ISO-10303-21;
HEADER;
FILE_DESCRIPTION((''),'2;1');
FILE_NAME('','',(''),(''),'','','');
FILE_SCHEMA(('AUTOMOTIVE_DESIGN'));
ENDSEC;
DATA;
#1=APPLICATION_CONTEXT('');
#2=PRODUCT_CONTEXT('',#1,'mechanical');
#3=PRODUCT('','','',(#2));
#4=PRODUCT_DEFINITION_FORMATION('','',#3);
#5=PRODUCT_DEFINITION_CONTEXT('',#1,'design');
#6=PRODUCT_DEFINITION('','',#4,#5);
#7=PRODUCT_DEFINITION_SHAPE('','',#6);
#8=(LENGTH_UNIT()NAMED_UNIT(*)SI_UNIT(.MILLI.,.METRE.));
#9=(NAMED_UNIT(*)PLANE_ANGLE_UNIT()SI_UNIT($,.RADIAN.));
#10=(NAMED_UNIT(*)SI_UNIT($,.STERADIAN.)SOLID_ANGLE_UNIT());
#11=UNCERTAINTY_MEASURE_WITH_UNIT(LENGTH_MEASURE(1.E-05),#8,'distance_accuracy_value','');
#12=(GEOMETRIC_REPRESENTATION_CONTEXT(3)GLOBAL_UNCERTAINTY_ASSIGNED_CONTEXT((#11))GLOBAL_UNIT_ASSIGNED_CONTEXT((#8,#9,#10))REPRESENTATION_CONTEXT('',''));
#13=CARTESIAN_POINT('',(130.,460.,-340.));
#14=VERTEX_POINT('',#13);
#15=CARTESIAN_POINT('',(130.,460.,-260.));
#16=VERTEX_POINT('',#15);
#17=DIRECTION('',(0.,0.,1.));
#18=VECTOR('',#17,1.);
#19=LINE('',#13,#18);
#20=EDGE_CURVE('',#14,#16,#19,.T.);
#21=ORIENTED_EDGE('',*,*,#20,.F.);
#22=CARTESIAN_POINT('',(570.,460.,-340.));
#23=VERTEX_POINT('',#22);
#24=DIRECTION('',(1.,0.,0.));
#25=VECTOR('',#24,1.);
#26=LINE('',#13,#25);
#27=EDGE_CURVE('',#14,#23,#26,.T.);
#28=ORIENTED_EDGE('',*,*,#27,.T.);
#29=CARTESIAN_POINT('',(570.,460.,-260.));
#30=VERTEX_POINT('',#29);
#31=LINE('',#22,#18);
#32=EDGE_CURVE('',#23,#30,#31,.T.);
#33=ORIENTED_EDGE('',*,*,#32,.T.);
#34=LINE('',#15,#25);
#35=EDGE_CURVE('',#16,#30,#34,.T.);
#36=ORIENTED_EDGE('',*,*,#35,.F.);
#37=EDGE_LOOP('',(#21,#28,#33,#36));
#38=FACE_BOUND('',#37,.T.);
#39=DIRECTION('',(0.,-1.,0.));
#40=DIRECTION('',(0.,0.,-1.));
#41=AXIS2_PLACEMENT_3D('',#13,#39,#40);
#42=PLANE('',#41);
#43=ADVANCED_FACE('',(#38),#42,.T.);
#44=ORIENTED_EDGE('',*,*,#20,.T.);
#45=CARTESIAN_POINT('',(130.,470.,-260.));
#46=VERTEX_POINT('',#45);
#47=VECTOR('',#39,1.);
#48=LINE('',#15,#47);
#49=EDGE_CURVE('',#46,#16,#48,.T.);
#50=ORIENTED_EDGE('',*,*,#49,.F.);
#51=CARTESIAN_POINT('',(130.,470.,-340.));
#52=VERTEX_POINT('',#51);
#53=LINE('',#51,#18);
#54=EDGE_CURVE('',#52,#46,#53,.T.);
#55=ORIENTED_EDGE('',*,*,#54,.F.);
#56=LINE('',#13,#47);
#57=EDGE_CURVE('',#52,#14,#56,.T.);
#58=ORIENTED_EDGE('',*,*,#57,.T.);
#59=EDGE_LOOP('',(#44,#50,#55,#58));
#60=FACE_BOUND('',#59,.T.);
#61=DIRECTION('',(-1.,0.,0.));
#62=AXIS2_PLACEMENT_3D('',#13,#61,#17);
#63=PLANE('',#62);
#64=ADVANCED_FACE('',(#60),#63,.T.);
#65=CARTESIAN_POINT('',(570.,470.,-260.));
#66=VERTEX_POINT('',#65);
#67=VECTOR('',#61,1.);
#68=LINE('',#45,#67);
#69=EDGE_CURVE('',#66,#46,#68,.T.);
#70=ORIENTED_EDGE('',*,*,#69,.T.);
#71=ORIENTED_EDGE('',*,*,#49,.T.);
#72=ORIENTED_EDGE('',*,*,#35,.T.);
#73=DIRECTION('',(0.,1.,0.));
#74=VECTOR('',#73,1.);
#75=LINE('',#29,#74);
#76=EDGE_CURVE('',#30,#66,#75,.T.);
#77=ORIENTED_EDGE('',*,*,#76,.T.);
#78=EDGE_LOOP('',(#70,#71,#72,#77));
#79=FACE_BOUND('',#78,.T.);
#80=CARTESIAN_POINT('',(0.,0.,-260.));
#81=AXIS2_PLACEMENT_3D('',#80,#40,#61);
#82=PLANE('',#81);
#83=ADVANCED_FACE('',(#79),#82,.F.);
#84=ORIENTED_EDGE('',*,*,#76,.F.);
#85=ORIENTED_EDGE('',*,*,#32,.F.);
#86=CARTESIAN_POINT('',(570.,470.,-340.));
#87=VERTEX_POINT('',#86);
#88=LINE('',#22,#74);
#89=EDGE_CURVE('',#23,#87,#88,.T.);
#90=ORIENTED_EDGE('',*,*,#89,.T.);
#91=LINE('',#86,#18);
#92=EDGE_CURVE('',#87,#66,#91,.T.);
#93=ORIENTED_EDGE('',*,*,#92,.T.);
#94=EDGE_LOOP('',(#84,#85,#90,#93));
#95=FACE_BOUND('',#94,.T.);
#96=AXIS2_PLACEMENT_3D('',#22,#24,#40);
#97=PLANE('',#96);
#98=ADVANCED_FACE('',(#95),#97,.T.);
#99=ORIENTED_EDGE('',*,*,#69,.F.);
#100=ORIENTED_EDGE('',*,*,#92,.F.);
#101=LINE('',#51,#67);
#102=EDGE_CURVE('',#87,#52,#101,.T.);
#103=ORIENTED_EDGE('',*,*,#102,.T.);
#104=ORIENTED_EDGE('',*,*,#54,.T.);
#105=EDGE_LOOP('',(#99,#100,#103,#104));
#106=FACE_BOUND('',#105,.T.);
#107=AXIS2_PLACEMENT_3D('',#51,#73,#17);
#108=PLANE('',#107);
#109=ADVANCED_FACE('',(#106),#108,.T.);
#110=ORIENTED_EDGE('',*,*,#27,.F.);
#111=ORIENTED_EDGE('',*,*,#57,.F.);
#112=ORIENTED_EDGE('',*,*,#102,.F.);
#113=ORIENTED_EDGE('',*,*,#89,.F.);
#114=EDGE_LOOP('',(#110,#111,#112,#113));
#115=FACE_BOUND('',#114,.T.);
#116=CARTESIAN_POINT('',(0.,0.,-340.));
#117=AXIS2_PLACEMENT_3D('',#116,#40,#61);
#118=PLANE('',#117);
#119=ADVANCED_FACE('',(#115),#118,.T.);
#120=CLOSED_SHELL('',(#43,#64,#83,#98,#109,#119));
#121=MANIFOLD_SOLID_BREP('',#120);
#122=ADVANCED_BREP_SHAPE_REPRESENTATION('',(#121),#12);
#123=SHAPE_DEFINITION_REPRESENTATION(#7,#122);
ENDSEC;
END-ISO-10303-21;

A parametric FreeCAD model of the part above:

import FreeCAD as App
import Part
import Sketcher
Q = App.Units.Quantity


def add_polygon(sketch, points):
    """Adds a closed chain of lines whose ends are joined by coincident constraints."""
    first, n = sketch.GeometryCount, len(points)
    for a, b in zip(points, points[1:] + points[:1]):
        sketch.addGeometry(Part.LineSegment(App.Vector(*a, 0), App.Vector(*b, 0)), False)
    for i in range(n):
        sketch.addConstraint(Sketcher.Constraint("Coincident", first + i, 2, first + (i + 1) % n, 1))

doc = App.newDocument("Part")
body = doc.addObject("PartDesign::Body", "Body")

# Sketch on XY plane
sketch1 = body.newObject("Sketcher::SketchObject", "Sketch")
sketch1.AttachmentSupport = (doc.getObject("XY_Plane"), [""])
sketch1.MapMode = "FlatFace"
sketch1.AttachmentOffset = App.Placement(App.Vector(0, 0, -260), App.Rotation())
add_polygon(sketch1, [(130, 470), (130, 460), (570, 460), (570, 470)])  # lines 0-3
sketch1.addConstraint(Sketcher.Constraint("Vertical", 0))
sketch1.addConstraint(Sketcher.Constraint("Horizontal", 1))
sketch1.addConstraint(Sketcher.Constraint("Vertical", 2))
sketch1.addConstraint(Sketcher.Constraint("Horizontal", 3))
sketch1.addConstraint(Sketcher.Constraint("DistanceX", 1, 1, 1, 2, Q("440 mm")))
sketch1.addConstraint(Sketcher.Constraint("DistanceY", 0, 2, 0, 1, Q("10 mm")))
sketch1.addConstraint(Sketcher.Constraint("DistanceX", -1, 1, 0, 2, Q("130 mm")))
sketch1.addConstraint(Sketcher.Constraint("DistanceY", -1, 1, 0, 2, Q("460 mm")))
pad1 = body.newObject("PartDesign::Pad", "Pad")
pad1.Profile = sketch1
pad1.Length = 80
pad1.Reversed = True

doc.recompute()
